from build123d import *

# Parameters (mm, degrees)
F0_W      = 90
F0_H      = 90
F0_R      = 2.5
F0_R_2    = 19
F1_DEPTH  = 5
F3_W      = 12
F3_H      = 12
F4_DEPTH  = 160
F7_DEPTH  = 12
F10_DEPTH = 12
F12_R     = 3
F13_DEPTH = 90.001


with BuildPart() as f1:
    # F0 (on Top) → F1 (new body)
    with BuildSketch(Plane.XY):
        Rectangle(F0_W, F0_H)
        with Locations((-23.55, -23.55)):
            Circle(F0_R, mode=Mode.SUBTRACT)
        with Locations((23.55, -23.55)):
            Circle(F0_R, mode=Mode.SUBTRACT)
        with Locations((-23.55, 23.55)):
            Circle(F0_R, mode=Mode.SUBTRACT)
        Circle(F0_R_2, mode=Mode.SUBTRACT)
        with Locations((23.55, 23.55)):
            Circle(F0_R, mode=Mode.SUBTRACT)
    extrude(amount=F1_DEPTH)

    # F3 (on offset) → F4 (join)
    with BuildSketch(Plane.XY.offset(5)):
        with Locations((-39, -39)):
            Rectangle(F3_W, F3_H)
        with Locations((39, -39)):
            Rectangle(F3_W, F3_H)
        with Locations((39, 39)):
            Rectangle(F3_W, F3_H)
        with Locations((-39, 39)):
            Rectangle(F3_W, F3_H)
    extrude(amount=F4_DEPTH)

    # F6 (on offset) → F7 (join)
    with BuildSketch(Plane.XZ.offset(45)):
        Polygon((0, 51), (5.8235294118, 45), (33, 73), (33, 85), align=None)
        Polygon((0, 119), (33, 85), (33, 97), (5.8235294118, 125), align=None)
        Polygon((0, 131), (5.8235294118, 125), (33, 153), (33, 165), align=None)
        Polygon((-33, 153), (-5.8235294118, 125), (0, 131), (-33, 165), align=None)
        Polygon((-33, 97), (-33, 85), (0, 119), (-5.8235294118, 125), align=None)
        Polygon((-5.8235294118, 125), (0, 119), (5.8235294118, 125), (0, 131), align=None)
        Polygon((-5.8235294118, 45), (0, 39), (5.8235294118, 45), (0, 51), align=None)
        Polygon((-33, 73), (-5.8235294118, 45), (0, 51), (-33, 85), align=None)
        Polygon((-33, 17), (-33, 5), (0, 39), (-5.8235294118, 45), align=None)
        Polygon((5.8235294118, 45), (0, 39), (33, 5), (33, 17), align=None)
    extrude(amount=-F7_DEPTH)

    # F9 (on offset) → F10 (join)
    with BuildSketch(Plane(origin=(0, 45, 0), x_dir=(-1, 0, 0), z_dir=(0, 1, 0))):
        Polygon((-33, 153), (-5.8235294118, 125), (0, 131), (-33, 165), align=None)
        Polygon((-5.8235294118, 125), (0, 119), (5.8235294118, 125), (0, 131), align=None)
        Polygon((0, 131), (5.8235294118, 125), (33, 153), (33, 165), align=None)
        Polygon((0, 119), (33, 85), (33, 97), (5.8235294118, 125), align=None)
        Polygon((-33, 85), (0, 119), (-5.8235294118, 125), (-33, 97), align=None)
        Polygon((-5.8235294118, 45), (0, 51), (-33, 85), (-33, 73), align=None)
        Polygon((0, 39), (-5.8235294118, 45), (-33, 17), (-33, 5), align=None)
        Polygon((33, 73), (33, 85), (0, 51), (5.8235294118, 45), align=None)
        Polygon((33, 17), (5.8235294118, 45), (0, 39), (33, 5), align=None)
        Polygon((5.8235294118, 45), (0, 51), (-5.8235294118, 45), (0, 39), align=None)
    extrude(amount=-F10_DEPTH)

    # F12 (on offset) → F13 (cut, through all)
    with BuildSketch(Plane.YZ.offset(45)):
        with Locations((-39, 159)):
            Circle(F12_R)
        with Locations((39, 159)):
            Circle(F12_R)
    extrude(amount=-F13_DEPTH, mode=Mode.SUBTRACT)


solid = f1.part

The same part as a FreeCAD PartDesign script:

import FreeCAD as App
import Part
import Sketcher


def add_polygon(sketch, points):
    """Adds a closed chain of lines whose ends are joined by coincident constraints."""
    first, n = sketch.GeometryCount, len(points)
    for a, b in zip(points, points[1:] + points[:1]):
        sketch.addGeometry(Part.LineSegment(App.Vector(*a, 0), App.Vector(*b, 0)), False)
    for i in range(n):
        sketch.addConstraint(Sketcher.Constraint("Coincident", first + i, 2, first + (i + 1) % n, 1))

doc = App.newDocument("Part")
body = doc.addObject("PartDesign::Body", "Body")

# Sketch on XY plane
sketch1 = body.newObject("Sketcher::SketchObject", "Sketch")
sketch1.AttachmentSupport = (doc.getObject("XY_Plane"), [""])
sketch1.MapMode = "FlatFace"
add_polygon(sketch1, [(-45, 45), (-45, -45), (45, -45), (45, 45)])  # lines 0-3
sketch1.addGeometry(Part.Circle(App.Vector(-23.55, -23.55, 0), App.Vector(0, 0, 1), 2.5), False)  # 4
sketch1.addGeometry(Part.Circle(App.Vector(23.55, -23.55, 0), App.Vector(0, 0, 1), 2.5), False)  # 5
sketch1.addGeometry(Part.Circle(App.Vector(-23.55, 23.55, 0), App.Vector(0, 0, 1), 2.5), False)  # 6
sketch1.addGeometry(Part.Circle(App.Vector(0, 0, 0), App.Vector(0, 0, 1), 19), False)  # 7
sketch1.addGeometry(Part.Circle(App.Vector(23.55, 23.55, 0), App.Vector(0, 0, 1), 2.5), False)  # 8
sketch1.addConstraint([
    Sketcher.Constraint("Vertical", 0),
    Sketcher.Constraint("Horizontal", 1),
    Sketcher.Constraint("Vertical", 2),
    Sketcher.Constraint("Horizontal", 3),
    Sketcher.Constraint("Coincident", 7, 3, -1, 1),
    Sketcher.Constraint("Equal", 4, 5),
    Sketcher.Constraint("Equal", 5, 6),
    Sketcher.Constraint("Equal", 6, 8),
    Sketcher.Constraint("Symmetric", 5, 3, 6, 3, -1, 1),
    Sketcher.Constraint("Symmetric", 4, 3, 8, 3, -1, 1),
    Sketcher.Constraint("Symmetric", 0, 2, 2, 2, -1, 1),
    Sketcher.Constraint("Symmetric", 4, 3, 5, 3, -2),
    Sketcher.Constraint("Equal", 3, 0),
    Sketcher.Constraint("Diameter", 4, 5.0),
    Sketcher.Constraint("Diameter", 7, 38.0),
    Sketcher.Constraint("DistanceX", 1, 1, 1, 2, 90.0),
    Sketcher.Constraint("DistanceX", 4, 3, 5, 3, 47.1),
    Sketcher.Constraint("DistanceY", 4, 3, 6, 3, 47.1),
])
pad1 = body.newObject("PartDesign::Pad", "Pad")
pad1.Profile = sketch1
pad1.Length = 5

# Sketch on XY plane
sketch2 = body.newObject("Sketcher::SketchObject", "Sketch001")
sketch2.AttachmentSupport = (doc.getObject("XY_Plane"), [""])
sketch2.MapMode = "FlatFace"
sketch2.AttachmentOffset = App.Placement(App.Vector(0, 0, 5), App.Rotation())
add_polygon(sketch2, [(-45, -33), (-45, -45), (-33, -45), (-33, -33)])  # lines 0-3
add_polygon(sketch2, [(33, -33), (33, -45), (45, -45), (45, -33)])  # lines 4-7
add_polygon(sketch2, [(33, 45), (33, 33), (45, 33), (45, 45)])  # lines 8-11
add_polygon(sketch2, [(-45, 45), (-45, 33), (-33, 33), (-33, 45)])  # lines 12-15
sketch2.addConstraint([
    Sketcher.Constraint("Vertical", 0),
    Sketcher.Constraint("Horizontal", 1),
    Sketcher.Constraint("Vertical", 2),
    Sketcher.Constraint("Horizontal", 3),
    Sketcher.Constraint("Vertical", 4),
    Sketcher.Constraint("Horizontal", 5),
    Sketcher.Constraint("Vertical", 6),
    Sketcher.Constraint("Horizontal", 7),
    Sketcher.Constraint("Vertical", 8),
    Sketcher.Constraint("Horizontal", 9),
    Sketcher.Constraint("Vertical", 10),
    Sketcher.Constraint("Horizontal", 11),
    Sketcher.Constraint("Vertical", 12),
    Sketcher.Constraint("Horizontal", 13),
    Sketcher.Constraint("Vertical", 14),
    Sketcher.Constraint("Horizontal", 15),
    Sketcher.Constraint("Symmetric", 2, 2, 8, 2, -1, 1),
    Sketcher.Constraint("Symmetric", 0, 2, 10, 2, -1, 1),
    Sketcher.Constraint("Symmetric", 6, 2, 12, 2, -1, 1),
    Sketcher.Constraint("Symmetric", 4, 2, 14, 2, -1, 1),
    Sketcher.Constraint("Symmetric", 1, 2, 4, 2, -2),
    Sketcher.Constraint("Symmetric", 3, 2, 6, 2, -2),
    Sketcher.Constraint("Equal", 15, 0),
    Sketcher.Constraint("DistanceX", 1, 1, 1, 2, 12.0),
    Sketcher.Constraint("DistanceX", 0, 2, -1, 1, 45.0),
    Sketcher.Constraint("DistanceY", 0, 2, -1, 1, 45.0),
])
pad2 = body.newObject("PartDesign::Pad", "Pad001")
pad2.Profile = sketch2
pad2.Length = 160

# Sketch on XZ plane
sketch3 = body.newObject("Sketcher::SketchObject", "Sketch002")
sketch3.AttachmentSupport = (doc.getObject("XZ_Plane"), [""])
sketch3.MapMode = "FlatFace"
sketch3.AttachmentOffset = App.Placement(App.Vector(0, 0, 45), App.Rotation())
add_polygon(sketch3, [(5.823529, 45), (33, 73), (33, 85), (0, 51), (-33, 85), (-33, 73), (-5.823529, 45), (-33, 17), (-33, 5), (0, 39), (33, 5), (33, 17)])  # lines 0-11
add_polygon(sketch3, [(0, 119), (33, 85), (33, 97), (5.823529, 125), (33, 153), (33, 165), (0, 131), (-33, 165), (-33, 153), (-5.823529, 125), (-33, 97), (-33, 85)])  # lines 12-23
sketch3.addConstraint([
    Sketcher.Constraint("Vertical", 1),
    Sketcher.Constraint("Vertical", 4),
    Sketcher.Constraint("Vertical", 7),
    Sketcher.Constraint("Vertical", 10),
    Sketcher.Constraint("Vertical", 13),
    Sketcher.Constraint("Vertical", 16),
    Sketcher.Constraint("Vertical", 19),
    Sketcher.Constraint("Vertical", 22),
    Sketcher.Constraint("Coincident", 12, 2, 1, 2),
    Sketcher.Constraint("Coincident", 22, 2, 3, 2),
    Sketcher.Constraint("Symmetric", 1, 2, 3, 2, -2),
    Sketcher.Constraint("Symmetric", 7, 2, 9, 2, -2),
    Sketcher.Constraint("Symmetric", 5, 2, 11, 2, -2),
    Sketcher.Constraint("Symmetric", 16, 2, 18, 2, -2),
    Sketcher.Constraint("Symmetric", 14, 2, 20, 2, -2),
    Sketcher.Constraint("PointOnObject", 2, 2, -2),
    Sketcher.Constraint("PointOnObject", 8, 2, -2),
    Sketcher.Constraint("PointOnObject", 17, 2, -2),
    Sketcher.Constraint("PointOnObject", 23, 2, -2),
    Sketcher.Constraint("Parallel", 0, 2),
    Sketcher.Constraint("Parallel", 3, 5),
    Sketcher.Constraint("Parallel", 2, 6),
    Sketcher.Constraint("Parallel", 6, 8),
    Sketcher.Constraint("Parallel", 9, 11),
    Sketcher.Constraint("Parallel", 11, 12),
    Sketcher.Constraint("Parallel", 12, 14),
    Sketcher.Constraint("Parallel", 8, 15),
    Sketcher.Constraint("Parallel", 15, 17),
    Sketcher.Constraint("Parallel", 18, 20),
    Sketcher.Constraint("Parallel", 17, 21),
    Sketcher.Constraint("Vertical", 4, 2, 6, 2),
    Sketcher.Constraint("Vertical", 11, 2, 14, 2),
    Sketcher.Constraint("Vertical", 13, 2, 15, 2),
    Sketcher.Constraint("Equal", 4, 7),
    Sketcher.Constraint("Equal", 10, 13),
    Sketcher.Constraint("Equal", 13, 16),
    Sketcher.Constraint("DistanceY", 1, 1, 1, 2, 12.0),
    Sketcher.Constraint("DistanceX", -1, 1, 0, 2, 33.0),
    Sketcher.Constraint("DistanceY", -1, 1, 0, 2, 73.0),
    Sketcher.Constraint("DistanceY", -1, 1, 2, 2, 51.0),
    Sketcher.Constraint("DistanceY", -1, 1, 5, 2, 45.0),
])
pad3 = body.newObject("PartDesign::Pad", "Pad002")
pad3.Profile = sketch3
pad3.Length = 12
pad3.Reversed = True

# Sketch on XZ plane
sketch4 = body.newObject("Sketcher::SketchObject", "Sketch003")
sketch4.AttachmentSupport = (doc.getObject("XZ_Plane"), [""])
sketch4.MapMode = "FlatFace"
sketch4.AttachmentOffset = App.Placement(App.Vector(0, 0, -45), App.Rotation())
add_polygon(sketch4, [(33, 153), (5.823529, 125), (33, 97), (33, 85), (0, 119), (-33, 85), (-33, 97), (-5.823529, 125), (-33, 153), (-33, 165), (0, 131), (33, 165)])  # lines 0-11
add_polygon(sketch4, [(0, 51), (33, 85), (33, 73), (5.823529, 45), (33, 17), (33, 5), (0, 39), (-33, 5), (-33, 17), (-5.823529, 45), (-33, 73), (-33, 85)])  # lines 12-23
sketch4.addConstraint([
    Sketcher.Constraint("Vertical", 2),
    Sketcher.Constraint("Vertical", 5),
    Sketcher.Constraint("Vertical", 8),
    Sketcher.Constraint("Vertical", 11),
    Sketcher.Constraint("Vertical", 13),
    Sketcher.Constraint("Vertical", 16),
    Sketcher.Constraint("Vertical", 19),
    Sketcher.Constraint("Vertical", 22),
    Sketcher.Constraint("Coincident", 12, 2, 2, 2),
    Sketcher.Constraint("Coincident", 22, 2, 4, 2),
    Sketcher.Constraint("Symmetric", 2, 2, 4, 2, -2),
    Sketcher.Constraint("Symmetric", 0, 2, 6, 2, -2),
    Sketcher.Constraint("Symmetric", 8, 2, 10, 2, -2),
    Sketcher.Constraint("Symmetric", 16, 2, 18, 2, -2),
    Sketcher.Constraint("Symmetric", 14, 2, 20, 2, -2),
    Sketcher.Constraint("PointOnObject", 3, 2, -2),
    Sketcher.Constraint("PointOnObject", 9, 2, -2),
    Sketcher.Constraint("PointOnObject", 17, 2, -2),
    Sketcher.Constraint("PointOnObject", 23, 2, -2),
    Sketcher.Constraint("Parallel", 1, 3),
    Sketcher.Constraint("Parallel", 0, 4),
    Sketcher.Constraint("Parallel", 4, 6),
    Sketcher.Constraint("Parallel", 3, 7),
    Sketcher.Constraint("Parallel", 7, 9),
    Sketcher.Constraint("Parallel", 10, 12),
    Sketcher.Constraint("Parallel", 12, 14),
    Sketcher.Constraint("Parallel", 9, 15),
    Sketcher.Constraint("Parallel", 15, 17),
    Sketcher.Constraint("Parallel", 18, 20),
    Sketcher.Constraint("Parallel", 17, 21),
    Sketcher.Constraint("Vertical", 5, 2, 7, 2),
    Sketcher.Constraint("Vertical", 0, 2, 14, 2),
    Sketcher.Constraint("Vertical", 13, 2, 15, 2),
    Sketcher.Constraint("Equal", 5, 8),
    Sketcher.Constraint("Equal", 11, 13),
    Sketcher.Constraint("Equal", 13, 16),
    Sketcher.Constraint("DistanceY", 2, 2, 2, 1, 12.0),
    Sketcher.Constraint("DistanceY", -1, 1, 0, 2, 125.0),
    Sketcher.Constraint("DistanceX", -1, 1, 1, 2, 33.0),
    Sketcher.Constraint("DistanceY", -1, 1, 1, 2, 97.0),
    Sketcher.Constraint("DistanceY", -1, 1, 3, 2, 119.0),
])
pad4 = body.newObject("PartDesign::Pad", "Pad003")
pad4.Profile = sketch4
pad4.Length = 12

# Sketch on YZ plane
sketch5 = body.newObject("Sketcher::SketchObject", "Sketch004")
sketch5.AttachmentSupport = (doc.getObject("YZ_Plane"), [""])
sketch5.MapMode = "FlatFace"
sketch5.AttachmentOffset = App.Placement(App.Vector(0, 0, 45), App.Rotation())
sketch5.addGeometry([
    Part.Circle(App.Vector(-39, 159, 0), App.Vector(0, 0, 1), 3),
    Part.Circle(App.Vector(39, 159, 0), App.Vector(0, 0, 1), 3),
], False)
sketch5.addConstraint([
    Sketcher.Constraint("Equal", 0, 1),
    Sketcher.Constraint("Symmetric", 0, 3, 1, 3, -2),
    Sketcher.Constraint("Diameter", 0, 6.0),
    Sketcher.Constraint("DistanceX", 0, 3, -1, 1, 39.0),
    Sketcher.Constraint("DistanceY", -1, 1, 0, 3, 159.0),
])
pocket1 = body.newObject("PartDesign::Pocket", "Pocket")
pocket1.Profile = sketch5
pocket1.Type = "ThroughAll"

doc.recompute()
